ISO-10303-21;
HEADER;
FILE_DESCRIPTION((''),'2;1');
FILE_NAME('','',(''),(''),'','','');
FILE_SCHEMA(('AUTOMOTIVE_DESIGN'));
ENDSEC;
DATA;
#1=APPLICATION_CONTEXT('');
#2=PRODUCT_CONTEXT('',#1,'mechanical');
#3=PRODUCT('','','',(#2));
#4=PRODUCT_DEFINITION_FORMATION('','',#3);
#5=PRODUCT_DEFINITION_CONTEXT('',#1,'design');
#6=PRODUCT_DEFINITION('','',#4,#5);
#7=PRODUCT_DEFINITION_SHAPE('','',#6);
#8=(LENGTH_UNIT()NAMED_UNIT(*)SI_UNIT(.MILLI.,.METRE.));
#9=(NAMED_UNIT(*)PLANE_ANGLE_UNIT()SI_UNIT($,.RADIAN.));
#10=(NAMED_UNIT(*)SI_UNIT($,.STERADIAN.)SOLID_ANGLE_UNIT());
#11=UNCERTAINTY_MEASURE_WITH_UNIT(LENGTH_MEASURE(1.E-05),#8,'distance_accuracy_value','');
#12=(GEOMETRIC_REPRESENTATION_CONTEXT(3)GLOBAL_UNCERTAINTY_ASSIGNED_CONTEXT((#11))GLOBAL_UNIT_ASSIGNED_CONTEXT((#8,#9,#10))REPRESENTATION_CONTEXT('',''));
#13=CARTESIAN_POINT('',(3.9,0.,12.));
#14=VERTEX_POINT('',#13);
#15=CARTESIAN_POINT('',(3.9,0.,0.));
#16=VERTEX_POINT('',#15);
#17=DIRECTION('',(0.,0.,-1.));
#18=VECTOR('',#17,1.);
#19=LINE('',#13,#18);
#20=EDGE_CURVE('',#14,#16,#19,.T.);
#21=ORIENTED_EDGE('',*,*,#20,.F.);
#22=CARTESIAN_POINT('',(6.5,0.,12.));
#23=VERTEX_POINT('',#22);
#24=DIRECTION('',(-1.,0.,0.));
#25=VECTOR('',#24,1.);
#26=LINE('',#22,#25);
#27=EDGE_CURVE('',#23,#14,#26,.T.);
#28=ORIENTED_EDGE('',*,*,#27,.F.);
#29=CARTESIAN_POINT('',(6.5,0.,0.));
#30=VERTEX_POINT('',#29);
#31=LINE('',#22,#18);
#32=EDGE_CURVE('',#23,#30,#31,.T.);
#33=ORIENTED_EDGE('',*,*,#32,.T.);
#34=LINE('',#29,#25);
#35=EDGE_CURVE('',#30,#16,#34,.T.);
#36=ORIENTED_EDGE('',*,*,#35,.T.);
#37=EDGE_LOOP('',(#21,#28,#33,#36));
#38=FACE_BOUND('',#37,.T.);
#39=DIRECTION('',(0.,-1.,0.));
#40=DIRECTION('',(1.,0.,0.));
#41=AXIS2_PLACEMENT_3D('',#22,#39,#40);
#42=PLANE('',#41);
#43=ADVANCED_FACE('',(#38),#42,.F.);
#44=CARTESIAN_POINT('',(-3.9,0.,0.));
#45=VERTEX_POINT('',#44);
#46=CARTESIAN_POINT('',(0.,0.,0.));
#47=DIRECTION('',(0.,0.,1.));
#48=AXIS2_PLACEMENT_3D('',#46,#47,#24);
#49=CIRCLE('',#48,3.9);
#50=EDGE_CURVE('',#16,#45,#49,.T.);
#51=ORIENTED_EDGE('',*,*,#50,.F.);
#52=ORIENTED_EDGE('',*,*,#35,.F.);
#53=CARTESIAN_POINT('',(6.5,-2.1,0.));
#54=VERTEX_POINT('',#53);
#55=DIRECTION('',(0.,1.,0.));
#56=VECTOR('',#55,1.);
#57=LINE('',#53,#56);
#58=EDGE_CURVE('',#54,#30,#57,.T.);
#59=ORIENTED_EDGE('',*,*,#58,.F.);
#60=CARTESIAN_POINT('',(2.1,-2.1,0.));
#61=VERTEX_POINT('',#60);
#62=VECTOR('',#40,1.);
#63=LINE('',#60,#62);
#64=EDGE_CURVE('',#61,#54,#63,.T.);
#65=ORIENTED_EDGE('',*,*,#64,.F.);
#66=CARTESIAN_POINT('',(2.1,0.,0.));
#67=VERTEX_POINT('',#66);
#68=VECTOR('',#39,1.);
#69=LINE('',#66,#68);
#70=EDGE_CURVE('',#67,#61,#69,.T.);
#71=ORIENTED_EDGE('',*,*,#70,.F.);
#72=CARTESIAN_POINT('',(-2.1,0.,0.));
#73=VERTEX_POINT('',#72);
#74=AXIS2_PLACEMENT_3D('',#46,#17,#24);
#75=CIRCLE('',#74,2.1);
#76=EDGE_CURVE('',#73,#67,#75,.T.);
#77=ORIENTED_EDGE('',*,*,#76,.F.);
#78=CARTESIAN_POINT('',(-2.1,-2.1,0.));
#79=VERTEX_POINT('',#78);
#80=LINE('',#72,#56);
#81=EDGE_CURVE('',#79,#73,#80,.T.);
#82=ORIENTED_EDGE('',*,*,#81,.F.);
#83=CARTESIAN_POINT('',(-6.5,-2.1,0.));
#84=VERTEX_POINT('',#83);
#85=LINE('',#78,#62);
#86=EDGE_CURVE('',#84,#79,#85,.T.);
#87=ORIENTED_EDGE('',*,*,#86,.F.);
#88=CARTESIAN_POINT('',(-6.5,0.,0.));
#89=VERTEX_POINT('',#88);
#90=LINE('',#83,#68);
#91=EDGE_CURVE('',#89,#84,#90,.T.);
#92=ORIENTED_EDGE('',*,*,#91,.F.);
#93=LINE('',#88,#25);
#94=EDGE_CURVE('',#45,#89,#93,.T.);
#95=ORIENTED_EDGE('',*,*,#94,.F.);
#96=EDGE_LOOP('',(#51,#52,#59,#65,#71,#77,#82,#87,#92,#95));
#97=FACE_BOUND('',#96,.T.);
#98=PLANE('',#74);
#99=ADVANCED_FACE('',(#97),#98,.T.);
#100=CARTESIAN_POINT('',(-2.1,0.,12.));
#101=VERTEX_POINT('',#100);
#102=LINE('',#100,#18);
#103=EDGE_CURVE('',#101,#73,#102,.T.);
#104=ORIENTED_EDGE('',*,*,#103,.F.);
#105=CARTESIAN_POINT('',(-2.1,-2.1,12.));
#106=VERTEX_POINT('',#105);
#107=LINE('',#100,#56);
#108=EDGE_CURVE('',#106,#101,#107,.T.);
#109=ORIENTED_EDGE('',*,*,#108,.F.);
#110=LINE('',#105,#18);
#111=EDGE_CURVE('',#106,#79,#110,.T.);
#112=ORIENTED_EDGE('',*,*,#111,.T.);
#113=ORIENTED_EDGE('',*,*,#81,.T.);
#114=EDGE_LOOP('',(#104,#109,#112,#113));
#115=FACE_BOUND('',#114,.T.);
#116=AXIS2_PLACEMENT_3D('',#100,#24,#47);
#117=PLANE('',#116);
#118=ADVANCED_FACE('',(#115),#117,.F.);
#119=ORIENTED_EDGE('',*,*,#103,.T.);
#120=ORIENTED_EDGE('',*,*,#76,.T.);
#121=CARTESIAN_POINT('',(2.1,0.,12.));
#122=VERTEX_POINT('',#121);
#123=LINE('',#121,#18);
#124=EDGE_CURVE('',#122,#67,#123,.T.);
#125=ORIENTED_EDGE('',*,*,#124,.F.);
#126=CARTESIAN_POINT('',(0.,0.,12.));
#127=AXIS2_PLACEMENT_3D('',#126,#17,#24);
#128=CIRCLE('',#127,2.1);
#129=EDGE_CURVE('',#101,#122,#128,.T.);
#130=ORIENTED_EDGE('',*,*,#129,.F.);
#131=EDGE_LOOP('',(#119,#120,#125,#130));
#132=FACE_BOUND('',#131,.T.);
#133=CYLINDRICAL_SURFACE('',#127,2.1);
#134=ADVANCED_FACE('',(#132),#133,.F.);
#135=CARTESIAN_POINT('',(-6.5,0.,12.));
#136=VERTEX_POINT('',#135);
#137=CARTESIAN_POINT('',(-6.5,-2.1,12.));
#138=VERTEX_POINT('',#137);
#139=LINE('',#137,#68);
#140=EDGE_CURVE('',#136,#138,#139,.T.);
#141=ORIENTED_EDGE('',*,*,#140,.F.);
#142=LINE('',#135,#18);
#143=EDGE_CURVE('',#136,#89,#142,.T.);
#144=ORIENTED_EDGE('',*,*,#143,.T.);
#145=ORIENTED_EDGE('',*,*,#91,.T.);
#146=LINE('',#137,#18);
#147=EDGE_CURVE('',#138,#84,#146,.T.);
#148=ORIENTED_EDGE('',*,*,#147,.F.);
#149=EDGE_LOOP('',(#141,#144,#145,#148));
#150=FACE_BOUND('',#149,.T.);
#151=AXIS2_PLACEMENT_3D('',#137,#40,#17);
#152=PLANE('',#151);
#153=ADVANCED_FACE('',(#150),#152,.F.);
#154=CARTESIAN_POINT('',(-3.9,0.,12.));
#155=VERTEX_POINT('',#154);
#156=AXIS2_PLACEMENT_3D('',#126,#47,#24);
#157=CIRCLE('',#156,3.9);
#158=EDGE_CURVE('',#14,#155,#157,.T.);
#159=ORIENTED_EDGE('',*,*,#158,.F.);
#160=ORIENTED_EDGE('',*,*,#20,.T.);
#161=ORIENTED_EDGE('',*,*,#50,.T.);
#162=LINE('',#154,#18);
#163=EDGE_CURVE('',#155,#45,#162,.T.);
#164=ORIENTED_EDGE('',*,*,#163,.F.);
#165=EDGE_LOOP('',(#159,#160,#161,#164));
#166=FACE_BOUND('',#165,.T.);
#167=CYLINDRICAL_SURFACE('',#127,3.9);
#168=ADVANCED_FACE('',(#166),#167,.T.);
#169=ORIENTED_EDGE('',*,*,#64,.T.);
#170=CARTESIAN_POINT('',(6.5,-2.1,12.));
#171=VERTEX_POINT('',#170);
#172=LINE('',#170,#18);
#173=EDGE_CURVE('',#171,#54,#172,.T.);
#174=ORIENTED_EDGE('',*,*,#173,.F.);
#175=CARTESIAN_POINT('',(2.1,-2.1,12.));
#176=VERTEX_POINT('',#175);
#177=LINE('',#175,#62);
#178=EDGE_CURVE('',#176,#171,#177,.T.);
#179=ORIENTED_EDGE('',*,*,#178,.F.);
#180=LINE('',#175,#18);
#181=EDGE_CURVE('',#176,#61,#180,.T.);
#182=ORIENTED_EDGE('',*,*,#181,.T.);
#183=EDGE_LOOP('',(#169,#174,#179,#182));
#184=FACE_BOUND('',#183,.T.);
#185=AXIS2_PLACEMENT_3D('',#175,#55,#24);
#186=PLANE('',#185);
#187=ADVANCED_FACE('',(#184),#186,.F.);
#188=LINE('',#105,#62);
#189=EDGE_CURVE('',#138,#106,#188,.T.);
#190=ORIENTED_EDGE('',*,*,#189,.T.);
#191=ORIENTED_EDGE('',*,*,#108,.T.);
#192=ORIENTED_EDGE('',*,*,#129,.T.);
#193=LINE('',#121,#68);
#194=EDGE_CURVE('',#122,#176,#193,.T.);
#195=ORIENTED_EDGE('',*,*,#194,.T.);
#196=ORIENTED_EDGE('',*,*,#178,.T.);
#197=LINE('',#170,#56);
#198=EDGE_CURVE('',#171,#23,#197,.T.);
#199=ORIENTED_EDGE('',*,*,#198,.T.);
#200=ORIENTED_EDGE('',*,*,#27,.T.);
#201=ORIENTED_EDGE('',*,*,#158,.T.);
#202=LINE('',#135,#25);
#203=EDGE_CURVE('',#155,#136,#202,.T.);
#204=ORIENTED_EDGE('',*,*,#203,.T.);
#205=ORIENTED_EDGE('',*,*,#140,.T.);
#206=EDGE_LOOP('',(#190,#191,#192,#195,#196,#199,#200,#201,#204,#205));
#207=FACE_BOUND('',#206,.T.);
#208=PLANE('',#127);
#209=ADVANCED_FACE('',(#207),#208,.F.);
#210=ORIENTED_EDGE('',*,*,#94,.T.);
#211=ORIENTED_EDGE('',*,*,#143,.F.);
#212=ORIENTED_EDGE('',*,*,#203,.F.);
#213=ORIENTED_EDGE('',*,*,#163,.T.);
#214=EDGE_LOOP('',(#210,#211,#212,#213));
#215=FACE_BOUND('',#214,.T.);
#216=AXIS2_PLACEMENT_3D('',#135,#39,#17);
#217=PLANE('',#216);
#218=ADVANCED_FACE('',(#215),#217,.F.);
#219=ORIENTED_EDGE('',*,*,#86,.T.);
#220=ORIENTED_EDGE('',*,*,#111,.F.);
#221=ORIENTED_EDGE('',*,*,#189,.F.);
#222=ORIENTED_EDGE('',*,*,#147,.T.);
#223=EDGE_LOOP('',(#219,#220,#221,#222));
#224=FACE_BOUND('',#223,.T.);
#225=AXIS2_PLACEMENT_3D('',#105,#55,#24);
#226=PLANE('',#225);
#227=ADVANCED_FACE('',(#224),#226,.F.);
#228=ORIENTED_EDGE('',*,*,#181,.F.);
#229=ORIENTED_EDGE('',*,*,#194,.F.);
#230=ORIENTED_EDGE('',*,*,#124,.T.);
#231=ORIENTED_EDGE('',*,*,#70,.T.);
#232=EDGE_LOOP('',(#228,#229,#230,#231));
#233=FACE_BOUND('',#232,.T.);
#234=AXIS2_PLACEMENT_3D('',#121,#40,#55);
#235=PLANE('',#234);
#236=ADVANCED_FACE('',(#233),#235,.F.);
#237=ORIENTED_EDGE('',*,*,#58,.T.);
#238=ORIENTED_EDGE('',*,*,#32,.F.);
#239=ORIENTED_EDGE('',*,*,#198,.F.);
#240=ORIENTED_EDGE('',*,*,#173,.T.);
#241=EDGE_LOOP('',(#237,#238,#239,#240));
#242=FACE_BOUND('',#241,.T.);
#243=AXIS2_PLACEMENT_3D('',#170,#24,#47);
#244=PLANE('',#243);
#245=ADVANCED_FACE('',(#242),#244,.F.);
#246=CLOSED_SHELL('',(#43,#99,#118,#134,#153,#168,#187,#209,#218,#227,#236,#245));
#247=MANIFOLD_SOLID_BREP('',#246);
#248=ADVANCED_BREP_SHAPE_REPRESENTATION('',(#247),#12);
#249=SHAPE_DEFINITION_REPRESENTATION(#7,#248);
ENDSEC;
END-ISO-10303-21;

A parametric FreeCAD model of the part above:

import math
import FreeCAD as App
import Part
import Sketcher

V = App.Vector
Q = App.Units.Quantity

doc = App.newDocument("Part")
body = doc.addObject("PartDesign::Body", "Body")

sketch1 = doc.addObject("Sketcher::SketchObject", "Sketch")
body.addObject(sketch1)
sketch1.AttachmentSupport = (doc.XY_Plane, [""])
sketch1.MapMode = "FlatFace"
sketch1.addGeometry([
    Part.LineSegment(V(-2.1, -2.1, 0), V(-2.1, 0, 0)),
    Part.ArcOfCircle(Part.Circle(V(0, 0, 0), V(0, 0, 1), 2.1), math.radians(0), math.radians(180)),
    Part.LineSegment(V(2.1, 0, 0), V(2.1, -2.1, 0)),
    Part.LineSegment(V(2.1, -2.1, 0), V(6.5, -2.1, 0)),
    Part.LineSegment(V(6.5, -2.1, 0), V(6.5, 0, 0)),
    Part.LineSegment(V(6.5, 0, 0), V(3.9, 0, 0)),
    Part.ArcOfCircle(Part.Circle(V(0, 0, 0), V(0, 0, 1), 3.9), math.radians(0), math.radians(180)),
    Part.LineSegment(V(-3.9, 0, 0), V(-6.5, 0, 0)),
    Part.LineSegment(V(-6.5, 0, 0), V(-6.5, -2.1, 0)),
    Part.LineSegment(V(-6.5, -2.1, 0), V(-2.1, -2.1, 0)),
], False)
sketch1.addConstraint([
    Sketcher.Constraint("Tangent", 0, 2, 1, 2),
    Sketcher.Constraint("Tangent", 1, 1, 2, 1),
    Sketcher.Constraint("Coincident", 2, 2, 3, 1),
    Sketcher.Constraint("Coincident", 3, 2, 4, 1),
    Sketcher.Constraint("Coincident", 4, 2, 5, 1),
    Sketcher.Constraint("Coincident", 5, 2, 6, 1),
    Sketcher.Constraint("Coincident", 6, 2, 7, 1),
    Sketcher.Constraint("Coincident", 7, 2, 8, 1),
    Sketcher.Constraint("Coincident", 8, 2, 9, 1),
    Sketcher.Constraint("Coincident", 9, 2, 0, 1),
    Sketcher.Constraint("Vertical", 0),
    Sketcher.Constraint("Vertical", 2),
    Sketcher.Constraint("Horizontal", 3),
    Sketcher.Constraint("Vertical", 4),
    Sketcher.Constraint("Horizontal", 5),
    Sketcher.Constraint("Horizontal", 7),
    Sketcher.Constraint("Vertical", 8),
    Sketcher.Constraint("Horizontal", 9),
    Sketcher.Constraint("Coincident", 1, 3, -1, 1),
    Sketcher.Constraint("Coincident", 6, 3, -1, 1),
    Sketcher.Constraint("Symmetric", 4, 2, 7, 2, -1, 1),
    Sketcher.Constraint("PointOnObject", 4, 2, -1),
    Sketcher.Constraint("Horizontal", 3, 2, 8, 2),
    Sketcher.Constraint("Radius", 1, Q("2.1 mm")),
    Sketcher.Constraint("Radius", 6, Q("3.9 mm")),
    Sketcher.Constraint("DistanceX", 3, 1, 3, 2, Q("4.4 mm")),
    Sketcher.Constraint("DistanceY", 0, 1, 0, 2, Q("2.1 mm")),
])
pad1 = doc.addObject("PartDesign::Pad", "Pad")
body.addObject(pad1)
pad1.Profile = sketch1
pad1.Length = 12

doc.recompute()
